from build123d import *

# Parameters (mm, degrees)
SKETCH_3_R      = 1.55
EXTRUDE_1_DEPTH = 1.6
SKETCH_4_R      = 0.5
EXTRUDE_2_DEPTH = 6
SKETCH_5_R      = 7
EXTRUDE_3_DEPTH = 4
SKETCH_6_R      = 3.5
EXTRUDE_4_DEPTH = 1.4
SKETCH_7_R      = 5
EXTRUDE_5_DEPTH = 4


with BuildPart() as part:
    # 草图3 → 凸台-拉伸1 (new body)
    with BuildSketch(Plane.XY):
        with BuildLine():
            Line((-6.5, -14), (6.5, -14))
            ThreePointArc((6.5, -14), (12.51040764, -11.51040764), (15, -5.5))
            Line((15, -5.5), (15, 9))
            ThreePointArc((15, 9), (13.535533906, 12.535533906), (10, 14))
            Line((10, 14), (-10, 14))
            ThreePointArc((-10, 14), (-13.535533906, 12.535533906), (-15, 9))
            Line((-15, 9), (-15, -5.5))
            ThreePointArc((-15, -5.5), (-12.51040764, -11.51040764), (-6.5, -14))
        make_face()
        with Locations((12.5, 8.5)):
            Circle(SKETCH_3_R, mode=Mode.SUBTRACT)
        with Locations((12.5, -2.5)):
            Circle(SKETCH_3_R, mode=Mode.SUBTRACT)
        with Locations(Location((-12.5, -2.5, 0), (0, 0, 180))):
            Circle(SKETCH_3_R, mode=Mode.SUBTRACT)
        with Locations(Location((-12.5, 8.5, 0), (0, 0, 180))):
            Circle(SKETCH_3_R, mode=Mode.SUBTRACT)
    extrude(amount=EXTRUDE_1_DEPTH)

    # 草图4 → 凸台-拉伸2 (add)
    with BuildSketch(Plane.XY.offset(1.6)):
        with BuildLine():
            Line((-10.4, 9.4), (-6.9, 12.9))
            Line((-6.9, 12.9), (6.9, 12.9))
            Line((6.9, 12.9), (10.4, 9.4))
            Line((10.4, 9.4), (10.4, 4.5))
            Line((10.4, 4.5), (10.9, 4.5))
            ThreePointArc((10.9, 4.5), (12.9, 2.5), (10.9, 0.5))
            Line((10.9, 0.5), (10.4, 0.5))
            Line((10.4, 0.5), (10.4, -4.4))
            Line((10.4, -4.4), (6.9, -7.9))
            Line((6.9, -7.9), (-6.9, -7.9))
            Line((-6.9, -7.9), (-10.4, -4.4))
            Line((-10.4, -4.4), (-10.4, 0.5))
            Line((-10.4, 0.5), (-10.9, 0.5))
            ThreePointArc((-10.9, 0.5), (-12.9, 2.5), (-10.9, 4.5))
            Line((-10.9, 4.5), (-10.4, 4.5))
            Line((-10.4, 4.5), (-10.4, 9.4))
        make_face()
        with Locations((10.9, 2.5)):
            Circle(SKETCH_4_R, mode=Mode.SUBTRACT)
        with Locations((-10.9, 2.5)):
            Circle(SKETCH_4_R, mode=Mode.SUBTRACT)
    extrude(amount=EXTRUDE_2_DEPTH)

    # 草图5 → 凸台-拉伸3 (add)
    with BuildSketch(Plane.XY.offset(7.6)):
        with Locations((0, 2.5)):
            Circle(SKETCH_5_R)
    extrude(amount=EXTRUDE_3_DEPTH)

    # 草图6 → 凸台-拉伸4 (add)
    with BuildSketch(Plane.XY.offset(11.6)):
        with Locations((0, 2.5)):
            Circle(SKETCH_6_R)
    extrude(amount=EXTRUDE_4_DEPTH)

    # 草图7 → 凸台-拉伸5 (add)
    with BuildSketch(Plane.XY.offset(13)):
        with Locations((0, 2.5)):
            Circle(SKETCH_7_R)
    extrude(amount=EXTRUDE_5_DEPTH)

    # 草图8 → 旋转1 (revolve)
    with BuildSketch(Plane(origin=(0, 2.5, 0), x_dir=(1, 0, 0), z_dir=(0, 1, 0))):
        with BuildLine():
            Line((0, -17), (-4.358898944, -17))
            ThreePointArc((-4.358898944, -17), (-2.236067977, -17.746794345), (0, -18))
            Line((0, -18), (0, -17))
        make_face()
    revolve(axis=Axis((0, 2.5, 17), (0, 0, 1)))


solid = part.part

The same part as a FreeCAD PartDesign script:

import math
import FreeCAD as App
import Part
import Sketcher

doc = App.newDocument("Part")
params = doc.addObject("Spreadsheet::Sheet", "Params")
for row, (alias, value) in enumerate([
    ("sketch1_radius", "5 mm"),
    ("sketch1_diameter", "3.1 mm"),
    ("sketch1_radius2", "8.5 mm"),
    ("sketch1_width", "13 mm"),
    ("sketch1_height", "14.5 mm"),
    ("pad1_length", "1.6 mm"),
    ("sketch2_diameter", "1 mm"),
    ("sketch2_radius", "2 mm"),
    ("sketch2_width", "0.5 mm"),
    ("sketch2_width2", "13.8 mm"),
    ("sketch2_height", "4.9 mm"),
    ("pad2_length", "6 mm"),
    ("sketch3_diameter", "14 mm"),
    ("pad3_length", "4 mm"),
    ("sketch4_diameter", "7 mm"),
    ("pad4_length", "1.4 mm"),
    ("sketch5_diameter", "10 mm"),
    ("pad5_length", "4 mm"),
    ("sketch6_radius", "10 mm"),
    ("sketch6_height", "1 mm"),
    ("revolution_angle", "360 deg"),
], start=1):
    params.set(f"A{row}", alias)
    params.set(f"B{row}", "=" + value)
    params.setAlias(f"B{row}", alias)

body = doc.addObject("PartDesign::Body", "Body")

sketch1 = body.newObject("Sketcher::SketchObject", "Sketch")
sketch1.AttachmentSupport = (doc.getObject("XY_Plane"), [""])
sketch1.MapMode = "FlatFace"
sketch1.addGeometry([
    Part.LineSegment(App.Vector(-6.5, -14, 0), App.Vector(6.5, -14, 0)),
    Part.ArcOfCircle(Part.Circle(App.Vector(6.5, -5.5, 0), App.Vector(0, 0, 1), 8.5), math.radians(-90), math.radians(0)),
    Part.LineSegment(App.Vector(15, -5.5, 0), App.Vector(15, 9, 0)),
    Part.ArcOfCircle(Part.Circle(App.Vector(10, 9, 0), App.Vector(0, 0, 1), 5), math.radians(0), math.radians(90)),
    Part.LineSegment(App.Vector(10, 14, 0), App.Vector(-10, 14, 0)),
    Part.ArcOfCircle(Part.Circle(App.Vector(-10, 9, 0), App.Vector(0, 0, 1), 5), math.radians(90), math.radians(180)),
    Part.LineSegment(App.Vector(-15, 9, 0), App.Vector(-15, -5.5, 0)),
    Part.ArcOfCircle(Part.Circle(App.Vector(-6.5, -5.5, 0), App.Vector(0, 0, 1), 8.5), math.radians(180), math.radians(270)),
    Part.Circle(App.Vector(-12.5, -2.5, 0), App.Vector(0, 0, 1), 1.6),
    Part.Circle(App.Vector(12.5, -2.5, 0), App.Vector(0, 0, 1), 1.6),
    Part.Circle(App.Vector(-12.5, 8.5, 0), App.Vector(0, 0, 1), 1.6),
    Part.Circle(App.Vector(12.5, 8.5, 0), App.Vector(0, 0, 1), 1.6),
], False)
sketch1.addConstraint([
    Sketcher.Constraint("Tangent", 0, 2, 1, 1),
    Sketcher.Constraint("Tangent", 1, 2, 2, 1),
    Sketcher.Constraint("Tangent", 2, 2, 3, 1),
    Sketcher.Constraint("Tangent", 3, 2, 4, 1),
    Sketcher.Constraint("Tangent", 4, 2, 5, 1),
    Sketcher.Constraint("Tangent", 5, 2, 6, 1),
    Sketcher.Constraint("Tangent", 6, 2, 7, 1),
    Sketcher.Constraint("Tangent", 7, 2, 0, 1),
    Sketcher.Constraint("Horizontal", 0),
    Sketcher.Constraint("Vertical", 2),
    Sketcher.Constraint("Horizontal", 4),
    Sketcher.Constraint("Vertical", 6),
    Sketcher.Constraint("Equal", 3, 5),
    Sketcher.Constraint("Equal", 1, 7),
    Sketcher.Constraint("Equal", 8, 9),
    Sketcher.Constraint("Equal", 9, 10),
    Sketcher.Constraint("Equal", 10, 11),
    Sketcher.Constraint("Symmetric", 8, 3, 9, 3, -2),
    Sketcher.Constraint("Symmetric", 10, 3, 11, 3, -2),
    Sketcher.Constraint("Vertical", 8, 3, 10, 3),
    Sketcher.Constraint("Radius", 3, 5.0),
    Sketcher.Constraint("Diameter", 8, 3.1),
    Sketcher.Constraint("Radius", 1, 8.5),
    Sketcher.Constraint("DistanceX", 0, 1, 0, 2, 13.0),
    Sketcher.Constraint("DistanceY", 2, 1, 2, 2, 14.5),
    Sketcher.Constraint("DistanceX", -1, 1, 3, 3, 10.0),
    Sketcher.Constraint("DistanceY", -1, 1, 3, 3, 9.0),
    Sketcher.Constraint("DistanceX", 8, 3, 7, 3, 6.0),
    Sketcher.Constraint("DistanceY", 7, 3, 8, 3, 3.0),
    Sketcher.Constraint("DistanceY", 8, 3, 10, 3, 11.0),
])
sketch1.setExpression("Constraints[20]", "Params.sketch1_radius")
sketch1.setExpression("Constraints[21]", "Params.sketch1_diameter")
sketch1.setExpression("Constraints[22]", "Params.sketch1_radius2")
sketch1.setExpression("Constraints[23]", "Params.sketch1_width")
sketch1.setExpression("Constraints[24]", "Params.sketch1_height")
pad1 = body.newObject("PartDesign::Pad", "Pad")
pad1.Profile = sketch1
pad1.setExpression("Length", "Params.pad1_length")

sketch2 = body.newObject("Sketcher::SketchObject", "Sketch001")
sketch2.AttachmentSupport = (doc.getObject("XY_Plane"), [""])
sketch2.MapMode = "FlatFace"
sketch2.AttachmentOffset = App.Placement(App.Vector(0, 0, 1.6), App.Rotation())
sketch2.addGeometry([
    Part.LineSegment(App.Vector(-6.9, 12.9, 0), App.Vector(-10.4, 9.4, 0)),
    Part.LineSegment(App.Vector(-10.4, 9.4, 0), App.Vector(-10.4, 4.5, 0)),
    Part.LineSegment(App.Vector(-10.4, 4.5, 0), App.Vector(-10.9, 4.5, 0)),
    Part.ArcOfCircle(Part.Circle(App.Vector(-10.9, 2.5, 0), App.Vector(0, 0, 1), 2), math.radians(90), math.radians(270)),
    Part.LineSegment(App.Vector(-10.9, 0.5, 0), App.Vector(-10.4, 0.5, 0)),
    Part.LineSegment(App.Vector(-10.4, 0.5, 0), App.Vector(-10.4, -4.4, 0)),
    Part.LineSegment(App.Vector(-10.4, -4.4, 0), App.Vector(-6.9, -7.9, 0)),
    Part.LineSegment(App.Vector(-6.9, -7.9, 0), App.Vector(6.9, -7.9, 0)),
    Part.LineSegment(App.Vector(6.9, -7.9, 0), App.Vector(10.4, -4.4, 0)),
    Part.LineSegment(App.Vector(10.4, -4.4, 0), App.Vector(10.4, 0.5, 0)),
    Part.LineSegment(App.Vector(10.4, 0.5, 0), App.Vector(10.9, 0.5, 0)),
    Part.ArcOfCircle(Part.Circle(App.Vector(10.9, 2.5, 0), App.Vector(0, 0, 1), 2), math.radians(-90), math.radians(90)),
    Part.LineSegment(App.Vector(10.9, 4.5, 0), App.Vector(10.4, 4.5, 0)),
    Part.LineSegment(App.Vector(10.4, 4.5, 0), App.Vector(10.4, 9.4, 0)),
    Part.LineSegment(App.Vector(10.4, 9.4, 0), App.Vector(6.9, 12.9, 0)),
    Part.LineSegment(App.Vector(6.9, 12.9, 0), App.Vector(-6.9, 12.9, 0)),
    Part.Circle(App.Vector(10.9, 2.5, 0), App.Vector(0, 0, 1), 0.5),
    Part.Circle(App.Vector(-10.9, 2.5, 0), App.Vector(0, 0, 1), 0.5),
], False)
sketch2.addConstraint([
    Sketcher.Constraint("Coincident", 0, 2, 1, 1),
    Sketcher.Constraint("Coincident", 1, 2, 2, 1),
    Sketcher.Constraint("Tangent", 2, 2, 3, 1),
    Sketcher.Constraint("Tangent", 3, 2, 4, 1),
    Sketcher.Constraint("Coincident", 4, 2, 5, 1),
    Sketcher.Constraint("Coincident", 5, 2, 6, 1),
    Sketcher.Constraint("Coincident", 6, 2, 7, 1),
    Sketcher.Constraint("Coincident", 7, 2, 8, 1),
    Sketcher.Constraint("Coincident", 8, 2, 9, 1),
    Sketcher.Constraint("Coincident", 9, 2, 10, 1),
    Sketcher.Constraint("Tangent", 10, 2, 11, 1),
    Sketcher.Constraint("Tangent", 11, 2, 12, 1),
    Sketcher.Constraint("Coincident", 12, 2, 13, 1),
    Sketcher.Constraint("Coincident", 13, 2, 14, 1),
    Sketcher.Constraint("Coincident", 14, 2, 15, 1),
    Sketcher.Constraint("Coincident", 15, 2, 0, 1),
    Sketcher.Constraint("Vertical", 1),
    Sketcher.Constraint("Horizontal", 2),
    Sketcher.Constraint("Horizontal", 4),
    Sketcher.Constraint("Vertical", 5),
    Sketcher.Constraint("Horizontal", 7),
    Sketcher.Constraint("Vertical", 9),
    Sketcher.Constraint("Horizontal", 10),
    Sketcher.Constraint("Horizontal", 12),
    Sketcher.Constraint("Vertical", 13),
    Sketcher.Constraint("Horizontal", 15),
    Sketcher.Constraint("Coincident", 16, 3, 11, 3),
    Sketcher.Constraint("Coincident", 17, 3, 3, 3),
    Sketcher.Constraint("Equal", 3, 11),
    Sketcher.Constraint("Equal", 16, 17),
    Sketcher.Constraint("Symmetric", 3, 3, 11, 3, -2),
    Sketcher.Constraint("Symmetric", 5, 2, 8, 2, -2),
    Sketcher.Constraint("Symmetric", 0, 2, 13, 2, -2),
    Sketcher.Constraint("Perpendicular", 0, 6),
    Sketcher.Constraint("Perpendicular", 6, 8),
    Sketcher.Constraint("Perpendicular", 8, 14),
    Sketcher.Constraint("Vertical", 1, 2, 4, 2),
    Sketcher.Constraint("Vertical", 7, 2, 14, 2),
    Sketcher.Constraint("Vertical", 6, 2, 15, 2),
    Sketcher.Constraint("Equal", 1, 5),
    Sketcher.Constraint("Diameter", 16, 1.0),
    Sketcher.Constraint("Radius", 3, 2.0),
    Sketcher.Constraint("DistanceX", 2, 2, 2, 1, 0.5),
    Sketcher.Constraint("DistanceX", 7, 1, 7, 2, 13.8),
    Sketcher.Constraint("DistanceY", 1, 2, 1, 1, 4.9),
    Sketcher.Constraint("DistanceX", 3, 2, 6, 2, 4.0),
    Sketcher.Constraint("DistanceY", -1, 1, 3, 3, 2.5),
])
sketch2.setExpression("Constraints[40]", "Params.sketch2_diameter")
sketch2.setExpression("Constraints[41]", "Params.sketch2_radius")
sketch2.setExpression("Constraints[42]", "Params.sketch2_width")
sketch2.setExpression("Constraints[43]", "Params.sketch2_width2")
sketch2.setExpression("Constraints[44]", "Params.sketch2_height")
pad2 = body.newObject("PartDesign::Pad", "Pad001")
pad2.Profile = sketch2
pad2.setExpression("Length", "Params.pad2_length")

sketch3 = body.newObject("Sketcher::SketchObject", "Sketch002")
sketch3.AttachmentSupport = (doc.getObject("XY_Plane"), [""])
sketch3.MapMode = "FlatFace"
sketch3.AttachmentOffset = App.Placement(App.Vector(0, 0, 7.6), App.Rotation())
sketch3.addGeometry(Part.Circle(App.Vector(0, 2, 0), App.Vector(0, 0, 1), 7), False)
sketch3.addConstraint([
    Sketcher.Constraint("PointOnObject", 0, 3, -2),
    Sketcher.Constraint("Diameter", 0, 14.0),
    Sketcher.Constraint("DistanceY", -1, 1, 0, 3, 2.5),
])
sketch3.setExpression("Constraints[1]", "Params.sketch3_diameter")
pad3 = body.newObject("PartDesign::Pad", "Pad002")
pad3.Profile = sketch3
pad3.setExpression("Length", "Params.pad3_length")

sketch4 = body.newObject("Sketcher::SketchObject", "Sketch003")
sketch4.AttachmentSupport = (doc.getObject("XY_Plane"), [""])
sketch4.MapMode = "FlatFace"
sketch4.AttachmentOffset = App.Placement(App.Vector(0, 0, 11.6), App.Rotation())
sketch4.addGeometry(Part.Circle(App.Vector(0, 2.5, 0), App.Vector(0, 0, 1), 3.5), False)
sketch4.addConstraint([
    Sketcher.Constraint("PointOnObject", 0, 3, -2),
    Sketcher.Constraint("Diameter", 0, 7.0),
    Sketcher.Constraint("DistanceY", -1, 1, 0, 3, 2.5),
])
sketch4.setExpression("Constraints[1]", "Params.sketch4_diameter")
pad4 = body.newObject("PartDesign::Pad", "Pad003")
pad4.Profile = sketch4
pad4.setExpression("Length", "Params.pad4_length")

sketch5 = body.newObject("Sketcher::SketchObject", "Sketch004")
sketch5.AttachmentSupport = (doc.getObject("XY_Plane"), [""])
sketch5.MapMode = "FlatFace"
sketch5.AttachmentOffset = App.Placement(App.Vector(0, 0, 13), App.Rotation())
sketch5.addGeometry(Part.Circle(App.Vector(0, 2, 0), App.Vector(0, 0, 1), 5), False)
sketch5.addConstraint([
    Sketcher.Constraint("PointOnObject", 0, 3, -2),
    Sketcher.Constraint("Diameter", 0, 10.0),
    Sketcher.Constraint("DistanceY", -1, 1, 0, 3, 2.5),
])
sketch5.setExpression("Constraints[1]", "Params.sketch5_diameter")
pad5 = body.newObject("PartDesign::Pad", "Pad004")
pad5.Profile = sketch5
pad5.setExpression("Length", "Params.pad5_length")

sketch6 = body.newObject("Sketcher::SketchObject", "Sketch005")
sketch6.AttachmentSupport = (doc.getObject("XZ_Plane"), [""])
sketch6.MapMode = "FlatFace"
sketch6.AttachmentOffset = App.Placement(App.Vector(0, 0, -2.5), App.Rotation())
sketch6.addGeometry([
    Part.LineSegment(App.Vector(0, 17, 0), App.Vector(-4.4, 17, 0)),
    Part.ArcOfCircle(Part.Circle(App.Vector(0, 8, 0), App.Vector(0, 0, 1), 10), math.radians(90), math.radians(116)),
    Part.LineSegment(App.Vector(0, 18, 0), App.Vector(0, 17, 0)),
], False)
sketch6.addConstraint([
    Sketcher.Constraint("Coincident", 0, 2, 1, 2),
    Sketcher.Constraint("Coincident", 1, 1, 2, 1),
    Sketcher.Constraint("Coincident", 2, 2, 0, 1),
    Sketcher.Constraint("Horizontal", 0),
    Sketcher.Constraint("Vertical", 2),
    Sketcher.Constraint("PointOnObject", 1, 3, -2),
    Sketcher.Constraint("PointOnObject", 1, 1, -2),
    Sketcher.Constraint("Radius", 1, 10.0),
    Sketcher.Constraint("DistanceY", 2, 2, 2, 1, 1.0),
    Sketcher.Constraint("DistanceY", -1, 1, 1, 3, 8.0),
])
sketch6.setExpression("Constraints[7]", "Params.sketch6_radius")
sketch6.setExpression("Constraints[8]", "Params.sketch6_height")
revolution = body.newObject("PartDesign::Revolution", "Revolution")
revolution.Profile = sketch6
revolution.ReferenceAxis = (sketch6, ["V_Axis"])
revolution.setExpression("Angle", "Params.revolution_angle")

doc.recompute()
